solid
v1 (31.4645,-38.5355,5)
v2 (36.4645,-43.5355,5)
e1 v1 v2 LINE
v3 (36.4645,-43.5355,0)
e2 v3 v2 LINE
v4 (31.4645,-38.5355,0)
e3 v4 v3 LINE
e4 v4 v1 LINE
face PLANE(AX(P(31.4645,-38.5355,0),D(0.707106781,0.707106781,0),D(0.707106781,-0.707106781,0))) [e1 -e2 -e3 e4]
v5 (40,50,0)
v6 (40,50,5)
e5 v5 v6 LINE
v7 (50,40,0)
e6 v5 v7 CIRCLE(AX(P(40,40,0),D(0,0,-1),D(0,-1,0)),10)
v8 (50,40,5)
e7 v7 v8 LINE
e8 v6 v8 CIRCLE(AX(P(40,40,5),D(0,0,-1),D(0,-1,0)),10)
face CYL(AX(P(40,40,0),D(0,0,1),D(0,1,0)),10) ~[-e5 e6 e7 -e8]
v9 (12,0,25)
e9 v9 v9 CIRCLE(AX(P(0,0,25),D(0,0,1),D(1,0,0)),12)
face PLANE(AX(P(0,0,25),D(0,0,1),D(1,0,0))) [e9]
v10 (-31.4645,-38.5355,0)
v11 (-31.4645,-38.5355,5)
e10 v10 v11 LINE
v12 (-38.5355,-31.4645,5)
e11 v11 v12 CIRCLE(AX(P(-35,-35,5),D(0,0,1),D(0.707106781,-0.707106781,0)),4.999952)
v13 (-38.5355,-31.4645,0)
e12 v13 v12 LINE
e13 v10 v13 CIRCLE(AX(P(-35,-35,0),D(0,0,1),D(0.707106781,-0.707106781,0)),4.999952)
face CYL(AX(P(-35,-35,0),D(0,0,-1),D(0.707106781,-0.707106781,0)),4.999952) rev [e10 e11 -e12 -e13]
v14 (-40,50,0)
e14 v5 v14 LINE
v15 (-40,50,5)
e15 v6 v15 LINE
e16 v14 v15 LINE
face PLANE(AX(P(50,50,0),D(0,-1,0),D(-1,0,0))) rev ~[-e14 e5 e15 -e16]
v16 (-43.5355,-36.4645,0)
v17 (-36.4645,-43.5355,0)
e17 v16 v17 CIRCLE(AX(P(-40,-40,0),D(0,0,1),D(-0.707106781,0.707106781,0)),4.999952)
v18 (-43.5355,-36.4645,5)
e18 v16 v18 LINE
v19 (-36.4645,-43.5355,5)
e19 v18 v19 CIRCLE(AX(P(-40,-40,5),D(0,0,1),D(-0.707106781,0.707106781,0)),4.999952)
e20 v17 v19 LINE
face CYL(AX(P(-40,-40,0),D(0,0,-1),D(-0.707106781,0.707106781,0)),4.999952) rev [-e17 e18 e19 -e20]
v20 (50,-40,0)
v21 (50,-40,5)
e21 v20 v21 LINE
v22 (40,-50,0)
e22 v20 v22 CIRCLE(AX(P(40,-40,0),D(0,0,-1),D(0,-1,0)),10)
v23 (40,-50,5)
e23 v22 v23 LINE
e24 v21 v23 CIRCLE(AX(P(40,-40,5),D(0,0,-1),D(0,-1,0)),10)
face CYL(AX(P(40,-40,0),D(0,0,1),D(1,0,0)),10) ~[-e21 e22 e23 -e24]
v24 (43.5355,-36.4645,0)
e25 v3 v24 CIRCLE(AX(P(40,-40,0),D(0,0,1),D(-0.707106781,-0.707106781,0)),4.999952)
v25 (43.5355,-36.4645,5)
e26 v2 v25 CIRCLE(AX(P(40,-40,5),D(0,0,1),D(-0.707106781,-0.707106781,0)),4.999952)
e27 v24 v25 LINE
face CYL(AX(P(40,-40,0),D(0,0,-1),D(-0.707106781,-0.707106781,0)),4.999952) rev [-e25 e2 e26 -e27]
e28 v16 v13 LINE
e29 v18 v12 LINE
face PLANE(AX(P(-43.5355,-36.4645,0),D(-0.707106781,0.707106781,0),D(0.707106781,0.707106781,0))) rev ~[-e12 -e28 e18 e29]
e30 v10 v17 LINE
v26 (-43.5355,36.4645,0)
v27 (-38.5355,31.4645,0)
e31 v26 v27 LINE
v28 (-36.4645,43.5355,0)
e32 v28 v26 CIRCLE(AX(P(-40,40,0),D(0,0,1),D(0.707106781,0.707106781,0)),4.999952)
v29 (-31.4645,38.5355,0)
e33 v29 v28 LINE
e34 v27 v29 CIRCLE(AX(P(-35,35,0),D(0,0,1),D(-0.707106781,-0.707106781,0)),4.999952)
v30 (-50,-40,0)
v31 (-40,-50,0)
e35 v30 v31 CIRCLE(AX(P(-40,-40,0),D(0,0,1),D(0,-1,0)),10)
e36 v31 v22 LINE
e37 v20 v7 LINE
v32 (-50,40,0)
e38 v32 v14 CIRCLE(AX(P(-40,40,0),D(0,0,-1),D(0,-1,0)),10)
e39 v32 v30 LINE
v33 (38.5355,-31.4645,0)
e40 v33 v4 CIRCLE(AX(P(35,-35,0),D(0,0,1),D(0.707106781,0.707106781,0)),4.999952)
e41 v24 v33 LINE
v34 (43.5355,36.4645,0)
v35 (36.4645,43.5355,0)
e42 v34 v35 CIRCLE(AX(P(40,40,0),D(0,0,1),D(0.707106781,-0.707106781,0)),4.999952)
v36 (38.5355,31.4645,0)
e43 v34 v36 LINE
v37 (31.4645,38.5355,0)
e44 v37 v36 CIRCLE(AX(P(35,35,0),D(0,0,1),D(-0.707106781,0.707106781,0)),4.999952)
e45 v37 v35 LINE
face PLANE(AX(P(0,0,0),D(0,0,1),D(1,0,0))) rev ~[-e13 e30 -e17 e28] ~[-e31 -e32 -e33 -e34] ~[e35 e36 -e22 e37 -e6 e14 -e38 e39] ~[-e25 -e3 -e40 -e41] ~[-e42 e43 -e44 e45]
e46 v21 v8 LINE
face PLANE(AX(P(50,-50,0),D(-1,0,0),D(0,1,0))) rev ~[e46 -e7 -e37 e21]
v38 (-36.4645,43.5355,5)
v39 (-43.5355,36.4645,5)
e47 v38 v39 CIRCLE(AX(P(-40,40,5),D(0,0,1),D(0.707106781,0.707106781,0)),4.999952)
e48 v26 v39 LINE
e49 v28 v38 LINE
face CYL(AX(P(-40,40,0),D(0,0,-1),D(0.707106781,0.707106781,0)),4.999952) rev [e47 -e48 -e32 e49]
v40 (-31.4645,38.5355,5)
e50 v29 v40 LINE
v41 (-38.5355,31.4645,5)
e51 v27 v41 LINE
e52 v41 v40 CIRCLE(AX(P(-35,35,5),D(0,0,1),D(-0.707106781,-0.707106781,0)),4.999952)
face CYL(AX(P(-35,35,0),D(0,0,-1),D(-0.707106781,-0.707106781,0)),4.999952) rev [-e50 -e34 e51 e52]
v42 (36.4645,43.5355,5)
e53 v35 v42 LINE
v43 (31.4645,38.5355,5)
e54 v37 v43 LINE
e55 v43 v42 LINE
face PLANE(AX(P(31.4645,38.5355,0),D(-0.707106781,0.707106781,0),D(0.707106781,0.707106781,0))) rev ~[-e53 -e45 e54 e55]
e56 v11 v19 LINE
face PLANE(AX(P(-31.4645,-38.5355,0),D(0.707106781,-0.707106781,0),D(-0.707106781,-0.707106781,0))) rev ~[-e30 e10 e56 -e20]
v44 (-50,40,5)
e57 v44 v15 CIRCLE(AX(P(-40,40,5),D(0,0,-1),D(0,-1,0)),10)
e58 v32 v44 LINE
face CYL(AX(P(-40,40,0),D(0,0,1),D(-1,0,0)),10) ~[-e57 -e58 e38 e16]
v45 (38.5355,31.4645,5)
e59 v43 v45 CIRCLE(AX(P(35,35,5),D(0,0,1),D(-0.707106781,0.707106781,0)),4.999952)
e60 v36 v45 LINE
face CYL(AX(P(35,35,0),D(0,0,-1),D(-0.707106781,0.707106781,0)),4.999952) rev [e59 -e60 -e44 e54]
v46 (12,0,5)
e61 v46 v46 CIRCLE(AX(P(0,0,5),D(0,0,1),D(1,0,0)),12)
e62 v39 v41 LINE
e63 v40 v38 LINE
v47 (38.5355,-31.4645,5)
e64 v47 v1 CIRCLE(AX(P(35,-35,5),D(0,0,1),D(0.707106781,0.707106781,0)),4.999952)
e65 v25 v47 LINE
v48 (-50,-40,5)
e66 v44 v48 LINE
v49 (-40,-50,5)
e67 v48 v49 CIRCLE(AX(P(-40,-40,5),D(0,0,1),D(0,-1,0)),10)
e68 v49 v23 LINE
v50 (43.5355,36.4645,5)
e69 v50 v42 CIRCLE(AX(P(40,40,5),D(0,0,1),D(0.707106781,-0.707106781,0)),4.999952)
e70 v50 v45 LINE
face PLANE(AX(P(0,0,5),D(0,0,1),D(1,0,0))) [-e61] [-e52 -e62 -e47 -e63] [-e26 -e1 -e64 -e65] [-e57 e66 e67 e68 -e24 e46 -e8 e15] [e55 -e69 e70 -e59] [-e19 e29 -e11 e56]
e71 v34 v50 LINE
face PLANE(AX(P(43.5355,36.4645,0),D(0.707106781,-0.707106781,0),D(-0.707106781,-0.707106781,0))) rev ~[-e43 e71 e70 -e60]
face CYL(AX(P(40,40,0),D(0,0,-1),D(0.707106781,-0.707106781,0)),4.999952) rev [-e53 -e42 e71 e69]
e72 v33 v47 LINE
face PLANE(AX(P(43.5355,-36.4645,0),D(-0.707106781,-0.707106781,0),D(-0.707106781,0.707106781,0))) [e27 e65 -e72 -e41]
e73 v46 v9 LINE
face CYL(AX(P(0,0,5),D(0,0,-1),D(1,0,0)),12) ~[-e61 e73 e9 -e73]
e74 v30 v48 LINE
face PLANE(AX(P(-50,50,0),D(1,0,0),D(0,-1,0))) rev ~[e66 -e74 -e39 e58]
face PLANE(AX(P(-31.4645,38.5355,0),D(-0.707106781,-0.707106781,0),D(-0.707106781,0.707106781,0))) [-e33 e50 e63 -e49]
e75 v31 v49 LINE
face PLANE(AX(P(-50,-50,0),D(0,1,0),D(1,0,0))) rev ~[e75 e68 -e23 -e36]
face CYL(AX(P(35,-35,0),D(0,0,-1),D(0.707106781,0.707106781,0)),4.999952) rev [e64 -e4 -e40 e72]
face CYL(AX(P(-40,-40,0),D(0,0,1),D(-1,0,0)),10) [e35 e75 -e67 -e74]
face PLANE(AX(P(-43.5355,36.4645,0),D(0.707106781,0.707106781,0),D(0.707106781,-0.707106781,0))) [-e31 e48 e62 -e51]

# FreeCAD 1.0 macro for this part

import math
import FreeCAD as App
import Part
import Sketcher

V = App.Vector


def edges_at(feature, points):
    """Names of the edges that pass closest to the given points."""
    edges = feature.Shape.Edges
    near = lambda p: min(range(len(edges)), key=lambda i: edges[i].distToShape(Part.Vertex(*p))[0])
    return sorted({f"Edge{near(p) + 1}" for p in points})


def add_polygon(sketch, points):
    """Adds a closed chain of lines whose ends are joined by coincident constraints."""
    first, n = sketch.GeometryCount, len(points)
    for a, b in zip(points, points[1:] + points[:1]):
        sketch.addGeometry(Part.LineSegment(App.Vector(*a, 0), App.Vector(*b, 0)), False)
    for i in range(n):
        sketch.addConstraint(Sketcher.Constraint("Coincident", first + i, 2, first + (i + 1) % n, 1))

doc = App.newDocument("Part")
body = doc.addObject("PartDesign::Body", "Body")

sketch1 = doc.addObject("Sketcher::SketchObject", "Sketch")
body.addObject(sketch1)
sketch1.AttachmentSupport = (doc.XY_Plane, [""])
sketch1.MapMode = "FlatFace"
add_polygon(sketch1, [(-50, 50), (-50, -50), (50, -50), (50, 50)])
sketch1.addGeometry(Part.ArcOfCircle(Part.Circle(V(-35, -35, 0), V(0, 0, 1), 5), math.radians(-45), math.radians(135)), False)
sketch1.addGeometry(Part.LineSegment(V(-31.5, -38.5, 0), V(-36.5, -43.5, 0)), False)
sketch1.addGeometry(Part.ArcOfCircle(Part.Circle(V(-40, -40, 0), V(0, 0, 1), 5), math.radians(135), math.radians(315)), False)
sketch1.addGeometry(Part.LineSegment(V(-43.5, -36.5, 0), V(-38.5, -31.5, 0)), False)
sketch1.addGeometry(Part.LineSegment(V(36.5, -43.5, 0), V(31.5, -38.5, 0)), False)
sketch1.addGeometry(Part.ArcOfCircle(Part.Circle(V(35, -35, 0), V(0, 0, 1), 5), math.radians(45), math.radians(225)), False)
sketch1.addGeometry(Part.LineSegment(V(38.5, -31.5, 0), V(43.5, -36.5, 0)), False)
sketch1.addGeometry(Part.ArcOfCircle(Part.Circle(V(40, -40, 0), V(0, 0, 1), 5), math.radians(-135), math.radians(45)), False)
sketch1.addGeometry(Part.LineSegment(V(-36.5, 43.5, 0), V(-31.5, 38.5, 0)), False)
sketch1.addGeometry(Part.ArcOfCircle(Part.Circle(V(-35, 35, 0), V(0, 0, 1), 5), math.radians(-135), math.radians(45)), False)
sketch1.addGeometry(Part.LineSegment(V(-38.5, 31.5, 0), V(-43.5, 36.5, 0)), False)
sketch1.addGeometry(Part.ArcOfCircle(Part.Circle(V(-40, 40, 0), V(0, 0, 1), 5), math.radians(45), math.radians(225)), False)
sketch1.addGeometry(Part.ArcOfCircle(Part.Circle(V(35, 35, 0), V(0, 0, 1), 5), math.radians(135), math.radians(315)), False)
sketch1.addGeometry(Part.LineSegment(V(31.5, 38.5, 0), V(36.5, 43.5, 0)), False)
sketch1.addGeometry(Part.ArcOfCircle(Part.Circle(V(40, 40, 0), V(0, 0, 1), 5), math.radians(-45), math.radians(135)), False)
sketch1.addGeometry(Part.LineSegment(V(43.5, 36.5, 0), V(38.5, 31.5, 0)), False)
sketch1.addConstraint([
    Sketcher.Constraint("Tangent", 4, 1, 5, 1),
    Sketcher.Constraint("Tangent", 5, 2, 6, 2),
    Sketcher.Constraint("Tangent", 6, 1, 7, 1),
    Sketcher.Constraint("Tangent", 7, 2, 4, 2),
    Sketcher.Constraint("Tangent", 8, 2, 9, 2),
    Sketcher.Constraint("Tangent", 9, 1, 10, 1),
    Sketcher.Constraint("Tangent", 10, 2, 11, 2),
    Sketcher.Constraint("Tangent", 11, 1, 8, 1),
    Sketcher.Constraint("Tangent", 12, 2, 13, 2),
    Sketcher.Constraint("Tangent", 13, 1, 14, 1),
    Sketcher.Constraint("Tangent", 14, 2, 15, 2),
    Sketcher.Constraint("Tangent", 15, 1, 12, 1),
    Sketcher.Constraint("Tangent", 16, 1, 17, 1),
    Sketcher.Constraint("Tangent", 17, 2, 18, 2),
    Sketcher.Constraint("Tangent", 18, 1, 19, 1),
    Sketcher.Constraint("Tangent", 19, 2, 16, 2),
    Sketcher.Constraint("Vertical", 0),
    Sketcher.Constraint("Horizontal", 1),
    Sketcher.Constraint("Vertical", 2),
    Sketcher.Constraint("Horizontal", 3),
    Sketcher.Constraint("Equal", 4, 6),
    Sketcher.Constraint("Equal", 6, 9),
    Sketcher.Constraint("Equal", 9, 11),
    Sketcher.Constraint("Equal", 11, 13),
    Sketcher.Constraint("Equal", 13, 15),
    Sketcher.Constraint("Equal", 15, 16),
    Sketcher.Constraint("Equal", 16, 18),
    Sketcher.Constraint("Symmetric", 9, 3, 13, 3, -1, 1),
    Sketcher.Constraint("Symmetric", 11, 3, 15, 3, -1, 1),
    Sketcher.Constraint("Symmetric", 4, 3, 16, 3, -1, 1),
    Sketcher.Constraint("Symmetric", 6, 3, 18, 3, -1, 1),
    Sketcher.Constraint("Symmetric", 0, 2, 2, 2, -1, 1),
    Sketcher.Constraint("Symmetric", 4, 3, 9, 3, -2),
    Sketcher.Constraint("Symmetric", 6, 3, 11, 3, -2),
    Sketcher.Constraint("Perpendicular", 7, 8),
    Sketcher.Constraint("Equal", 3, 0),
    Sketcher.Constraint("Radius", 4, 5.0),
    Sketcher.Constraint("DistanceX", 1, 1, 1, 2, 100.0),
    Sketcher.Constraint("DistanceX", 6, 3, 4, 3, 5.0),
    Sketcher.Constraint("DistanceX", 0, 2, 6, 3, 10.0),
    Sketcher.Constraint("DistanceY", 0, 2, 6, 3, 10.0),
])
pad1 = doc.addObject("PartDesign::Pad", "Pad")
body.addObject(pad1)
pad1.Profile = sketch1
pad1.Length = 5
doc.recompute()

fillet = doc.addObject("PartDesign::Fillet", "Fillet")
body.addObject(fillet)
fillet.Base = (pad1, edges_at(pad1, [
    (50, 50, 2.5),
    (50, -50, 2.5),
    (-50, -50, 2.5),
    (-50, 50, 2.5),
]))
fillet.Radius = 10

sketch2 = doc.addObject("Sketcher::SketchObject", "Sketch001")
body.addObject(sketch2)
sketch2.AttachmentSupport = (doc.XY_Plane, [""])
sketch2.MapMode = "FlatFace"
sketch2.AttachmentOffset = App.Placement(V(0, 0, 5), App.Rotation())
sketch2.addGeometry(Part.Circle(V(0, 0, 0), V(0, 0, 1), 12), False)
sketch2.addConstraint([
    Sketcher.Constraint("Coincident", 0, 3, -1, 1),
    Sketcher.Constraint("Diameter", 0, 24.0),
])
pad2 = doc.addObject("PartDesign::Pad", "Pad001")
body.addObject(pad2)
pad2.Profile = sketch2
pad2.Length = 20

doc.recompute()
